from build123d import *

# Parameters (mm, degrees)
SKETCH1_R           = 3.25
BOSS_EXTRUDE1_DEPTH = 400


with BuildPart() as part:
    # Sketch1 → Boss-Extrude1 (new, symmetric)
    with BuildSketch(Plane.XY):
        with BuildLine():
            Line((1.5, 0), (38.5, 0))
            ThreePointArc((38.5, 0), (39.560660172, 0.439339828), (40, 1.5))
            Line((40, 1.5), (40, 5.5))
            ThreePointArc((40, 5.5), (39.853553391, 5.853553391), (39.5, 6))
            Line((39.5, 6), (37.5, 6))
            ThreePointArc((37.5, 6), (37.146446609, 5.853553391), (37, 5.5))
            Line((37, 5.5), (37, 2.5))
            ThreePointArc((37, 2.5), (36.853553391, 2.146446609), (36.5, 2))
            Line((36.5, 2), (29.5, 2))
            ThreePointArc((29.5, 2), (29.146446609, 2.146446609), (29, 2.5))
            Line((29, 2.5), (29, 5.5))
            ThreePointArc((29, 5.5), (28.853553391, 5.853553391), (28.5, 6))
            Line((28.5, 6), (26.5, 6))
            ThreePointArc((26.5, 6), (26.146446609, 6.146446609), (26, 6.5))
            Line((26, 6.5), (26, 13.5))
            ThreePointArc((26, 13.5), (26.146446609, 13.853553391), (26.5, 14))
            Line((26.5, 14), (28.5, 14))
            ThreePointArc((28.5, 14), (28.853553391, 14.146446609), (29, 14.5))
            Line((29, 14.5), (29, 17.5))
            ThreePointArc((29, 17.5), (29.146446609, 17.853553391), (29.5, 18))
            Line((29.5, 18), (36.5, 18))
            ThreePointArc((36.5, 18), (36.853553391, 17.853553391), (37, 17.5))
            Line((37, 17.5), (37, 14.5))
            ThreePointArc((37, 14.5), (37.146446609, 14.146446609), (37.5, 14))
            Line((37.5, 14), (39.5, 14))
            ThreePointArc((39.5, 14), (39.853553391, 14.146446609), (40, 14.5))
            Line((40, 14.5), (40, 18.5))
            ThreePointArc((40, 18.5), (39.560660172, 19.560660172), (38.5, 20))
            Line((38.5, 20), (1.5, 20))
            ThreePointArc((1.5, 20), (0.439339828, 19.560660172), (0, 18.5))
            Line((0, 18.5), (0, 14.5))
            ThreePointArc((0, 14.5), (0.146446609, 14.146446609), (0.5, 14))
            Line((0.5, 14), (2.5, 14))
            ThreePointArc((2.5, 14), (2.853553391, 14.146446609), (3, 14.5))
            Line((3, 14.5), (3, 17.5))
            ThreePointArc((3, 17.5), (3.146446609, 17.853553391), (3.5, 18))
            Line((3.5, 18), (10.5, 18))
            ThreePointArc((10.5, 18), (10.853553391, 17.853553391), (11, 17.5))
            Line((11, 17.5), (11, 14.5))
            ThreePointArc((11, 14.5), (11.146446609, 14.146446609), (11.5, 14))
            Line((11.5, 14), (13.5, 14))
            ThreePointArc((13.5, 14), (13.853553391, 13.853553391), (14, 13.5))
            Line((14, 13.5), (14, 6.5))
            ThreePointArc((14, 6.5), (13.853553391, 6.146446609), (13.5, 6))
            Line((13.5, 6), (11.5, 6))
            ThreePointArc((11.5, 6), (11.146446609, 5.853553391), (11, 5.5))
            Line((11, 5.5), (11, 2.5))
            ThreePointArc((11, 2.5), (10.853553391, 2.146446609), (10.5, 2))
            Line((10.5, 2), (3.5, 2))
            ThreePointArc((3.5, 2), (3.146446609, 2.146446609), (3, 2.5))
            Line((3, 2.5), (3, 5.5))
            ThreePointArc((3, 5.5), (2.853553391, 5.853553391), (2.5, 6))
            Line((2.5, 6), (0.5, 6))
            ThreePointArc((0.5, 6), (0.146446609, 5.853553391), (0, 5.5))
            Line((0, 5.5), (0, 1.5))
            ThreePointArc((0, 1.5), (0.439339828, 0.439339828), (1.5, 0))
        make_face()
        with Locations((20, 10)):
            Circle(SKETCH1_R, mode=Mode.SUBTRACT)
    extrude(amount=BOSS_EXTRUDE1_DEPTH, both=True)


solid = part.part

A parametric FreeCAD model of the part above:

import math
import FreeCAD as App
import Part
import Sketcher
from FreeCAD import Vector
Q = App.Units.Quantity

doc = App.newDocument("Part")
body = doc.addObject("PartDesign::Body", "Body")

# Sketch on XY plane
sketch1 = body.newObject("Sketcher::SketchObject", "Sketch")
sketch1.AttachmentSupport = (doc.getObject("XY_Plane"), [""])
sketch1.MapMode = "FlatFace"
sketch1.addGeometry([
    Part.LineSegment(Vector(1.5, 0, 0), Vector(38.5, 0, 0)),  # 0
    Part.ArcOfCircle(Part.Circle(Vector(38.5, 1.5, 0), Vector(0, 0, 1), 1.5), math.radians(-90), math.radians(0)),  # 1
    Part.LineSegment(Vector(40, 1.5, 0), Vector(40, 5.5, 0)),  # 2
    Part.ArcOfCircle(Part.Circle(Vector(39.5, 5.5, 0), Vector(0, 0, 1), 0.5), math.radians(0), math.radians(90)),  # 3
    Part.LineSegment(Vector(39.5, 6, 0), Vector(37.5, 6, 0)),  # 4
    Part.ArcOfCircle(Part.Circle(Vector(37.5, 5.5, 0), Vector(0, 0, 1), 0.5), math.radians(90), math.radians(180)),  # 5
    Part.LineSegment(Vector(37, 5.5, 0), Vector(37, 2.5, 0)),  # 6
    Part.ArcOfCircle(Part.Circle(Vector(36.5, 2.5, 0), Vector(0, 0, 1), 0.5), math.radians(-90), math.radians(0)),  # 7
    Part.LineSegment(Vector(36.5, 2, 0), Vector(29.5, 2, 0)),  # 8
    Part.ArcOfCircle(Part.Circle(Vector(29.5, 2.5, 0), Vector(0, 0, 1), 0.5), math.radians(180), math.radians(270)),  # 9
    Part.LineSegment(Vector(29, 2.5, 0), Vector(29, 5.5, 0)),  # 10
    Part.ArcOfCircle(Part.Circle(Vector(28.5, 5.5, 0), Vector(0, 0, 1), 0.5), math.radians(0), math.radians(90)),  # 11
    Part.LineSegment(Vector(28.5, 6, 0), Vector(26.5, 6, 0)),  # 12
    Part.ArcOfCircle(Part.Circle(Vector(26.5, 6.5, 0), Vector(0, 0, 1), 0.5), math.radians(180), math.radians(270)),  # 13
    Part.LineSegment(Vector(26, 6.5, 0), Vector(26, 13.5, 0)),  # 14
    Part.ArcOfCircle(Part.Circle(Vector(26.5, 13.5, 0), Vector(0, 0, 1), 0.5), math.radians(90), math.radians(180)),  # 15
    Part.LineSegment(Vector(26.5, 14, 0), Vector(28.5, 14, 0)),  # 16
    Part.ArcOfCircle(Part.Circle(Vector(28.5, 14.5, 0), Vector(0, 0, 1), 0.5), math.radians(-90), math.radians(0)),  # 17
    Part.LineSegment(Vector(29, 14.5, 0), Vector(29, 17.5, 0)),  # 18
    Part.ArcOfCircle(Part.Circle(Vector(29.5, 17.5, 0), Vector(0, 0, 1), 0.5), math.radians(90), math.radians(180)),  # 19
    Part.LineSegment(Vector(29.5, 18, 0), Vector(36.5, 18, 0)),  # 20
    Part.ArcOfCircle(Part.Circle(Vector(36.5, 17.5, 0), Vector(0, 0, 1), 0.5), math.radians(0), math.radians(90)),  # 21
    Part.LineSegment(Vector(37, 17.5, 0), Vector(37, 14.5, 0)),  # 22
    Part.ArcOfCircle(Part.Circle(Vector(37.5, 14.5, 0), Vector(0, 0, 1), 0.5), math.radians(180), math.radians(270)),  # 23
    Part.LineSegment(Vector(37.5, 14, 0), Vector(39.5, 14, 0)),  # 24
    Part.ArcOfCircle(Part.Circle(Vector(39.5, 14.5, 0), Vector(0, 0, 1), 0.5), math.radians(-90), math.radians(0)),  # 25
    Part.LineSegment(Vector(40, 14.5, 0), Vector(40, 18.5, 0)),  # 26
    Part.ArcOfCircle(Part.Circle(Vector(38.5, 18.5, 0), Vector(0, 0, 1), 1.5), math.radians(0), math.radians(90)),  # 27
    Part.LineSegment(Vector(38.5, 20, 0), Vector(1.5, 20, 0)),  # 28
    Part.ArcOfCircle(Part.Circle(Vector(1.5, 18.5, 0), Vector(0, 0, 1), 1.5), math.radians(90), math.radians(180)),  # 29
    Part.LineSegment(Vector(0, 18.5, 0), Vector(0, 14.5, 0)),  # 30
    Part.ArcOfCircle(Part.Circle(Vector(0.5, 14.5, 0), Vector(0, 0, 1), 0.5), math.radians(180), math.radians(270)),  # 31
    Part.LineSegment(Vector(0.5, 14, 0), Vector(2.5, 14, 0)),  # 32
    Part.ArcOfCircle(Part.Circle(Vector(2.5, 14.5, 0), Vector(0, 0, 1), 0.5), math.radians(-90), math.radians(0)),  # 33
    Part.LineSegment(Vector(3, 14.5, 0), Vector(3, 17.5, 0)),  # 34
    Part.ArcOfCircle(Part.Circle(Vector(3.5, 17.5, 0), Vector(0, 0, 1), 0.5), math.radians(90), math.radians(180)),  # 35
    Part.LineSegment(Vector(3.5, 18, 0), Vector(10.5, 18, 0)),  # 36
    Part.ArcOfCircle(Part.Circle(Vector(10.5, 17.5, 0), Vector(0, 0, 1), 0.5), math.radians(0), math.radians(90)),  # 37
    Part.LineSegment(Vector(11, 17.5, 0), Vector(11, 14.5, 0)),  # 38
    Part.ArcOfCircle(Part.Circle(Vector(11.5, 14.5, 0), Vector(0, 0, 1), 0.5), math.radians(180), math.radians(270)),  # 39
    Part.LineSegment(Vector(11.5, 14, 0), Vector(13.5, 14, 0)),  # 40
    Part.ArcOfCircle(Part.Circle(Vector(13.5, 13.5, 0), Vector(0, 0, 1), 0.5), math.radians(0), math.radians(90)),  # 41
    Part.LineSegment(Vector(14, 13.5, 0), Vector(14, 6.5, 0)),  # 42
    Part.ArcOfCircle(Part.Circle(Vector(13.5, 6.5, 0), Vector(0, 0, 1), 0.5), math.radians(-90), math.radians(0)),  # 43
    Part.LineSegment(Vector(13.5, 6, 0), Vector(11.5, 6, 0)),  # 44
    Part.ArcOfCircle(Part.Circle(Vector(11.5, 5.5, 0), Vector(0, 0, 1), 0.5), math.radians(90), math.radians(180)),  # 45
    Part.LineSegment(Vector(11, 5.5, 0), Vector(11, 2.5, 0)),  # 46
    Part.ArcOfCircle(Part.Circle(Vector(10.5, 2.5, 0), Vector(0, 0, 1), 0.5), math.radians(-90), math.radians(0)),  # 47
    Part.LineSegment(Vector(10.5, 2, 0), Vector(3.5, 2, 0)),  # 48
    Part.ArcOfCircle(Part.Circle(Vector(3.5, 2.5, 0), Vector(0, 0, 1), 0.5), math.radians(180), math.radians(270)),  # 49
    Part.LineSegment(Vector(3, 2.5, 0), Vector(3, 5.5, 0)),  # 50
    Part.ArcOfCircle(Part.Circle(Vector(2.5, 5.5, 0), Vector(0, 0, 1), 0.5), math.radians(0), math.radians(90)),  # 51
    Part.LineSegment(Vector(2.5, 6, 0), Vector(0.5, 6, 0)),  # 52
    Part.ArcOfCircle(Part.Circle(Vector(0.5, 5.5, 0), Vector(0, 0, 1), 0.5), math.radians(90), math.radians(180)),  # 53
    Part.LineSegment(Vector(0, 5.5, 0), Vector(0, 1.5, 0)),  # 54
    Part.ArcOfCircle(Part.Circle(Vector(1.5, 1.5, 0), Vector(0, 0, 1), 1.5), math.radians(180), math.radians(270)),  # 55
    Part.Circle(Vector(20, 10, 0), Vector(0, 0, 1), 3.25),  # 56
], False)
sketch1.addConstraint([
    Sketcher.Constraint("Tangent", 0, 2, 1, 1),
    Sketcher.Constraint("Tangent", 1, 2, 2, 1),
    Sketcher.Constraint("Tangent", 2, 2, 3, 1),
    Sketcher.Constraint("Tangent", 3, 2, 4, 1),
    Sketcher.Constraint("Tangent", 4, 2, 5, 1),
    Sketcher.Constraint("Tangent", 5, 2, 6, 1),
    Sketcher.Constraint("Tangent", 6, 2, 7, 2),
    Sketcher.Constraint("Tangent", 7, 1, 8, 1),
    Sketcher.Constraint("Tangent", 8, 2, 9, 2),
    Sketcher.Constraint("Tangent", 9, 1, 10, 1),
    Sketcher.Constraint("Tangent", 10, 2, 11, 1),
    Sketcher.Constraint("Tangent", 11, 2, 12, 1),
    Sketcher.Constraint("Tangent", 12, 2, 13, 2),
    Sketcher.Constraint("Tangent", 13, 1, 14, 1),
    Sketcher.Constraint("Tangent", 14, 2, 15, 2),
    Sketcher.Constraint("Tangent", 15, 1, 16, 1),
    Sketcher.Constraint("Tangent", 16, 2, 17, 1),
    Sketcher.Constraint("Tangent", 17, 2, 18, 1),
    Sketcher.Constraint("Tangent", 18, 2, 19, 2),
    Sketcher.Constraint("Tangent", 19, 1, 20, 1),
    Sketcher.Constraint("Tangent", 20, 2, 21, 2),
    Sketcher.Constraint("Tangent", 21, 1, 22, 1),
    Sketcher.Constraint("Tangent", 22, 2, 23, 1),
    Sketcher.Constraint("Tangent", 23, 2, 24, 1),
    Sketcher.Constraint("Tangent", 24, 2, 25, 1),
    Sketcher.Constraint("Tangent", 25, 2, 26, 1),
    Sketcher.Constraint("Tangent", 26, 2, 27, 1),
    Sketcher.Constraint("Tangent", 27, 2, 28, 1),
    Sketcher.Constraint("Tangent", 28, 2, 29, 1),
    Sketcher.Constraint("Tangent", 29, 2, 30, 1),
    Sketcher.Constraint("Tangent", 30, 2, 31, 1),
    Sketcher.Constraint("Tangent", 31, 2, 32, 1),
    Sketcher.Constraint("Tangent", 32, 2, 33, 1),
    Sketcher.Constraint("Tangent", 33, 2, 34, 1),
    Sketcher.Constraint("Tangent", 34, 2, 35, 2),
    Sketcher.Constraint("Tangent", 35, 1, 36, 1),
    Sketcher.Constraint("Tangent", 36, 2, 37, 2),
    Sketcher.Constraint("Tangent", 37, 1, 38, 1),
    Sketcher.Constraint("Tangent", 38, 2, 39, 1),
    Sketcher.Constraint("Tangent", 39, 2, 40, 1),
    Sketcher.Constraint("Tangent", 40, 2, 41, 2),
    Sketcher.Constraint("Tangent", 41, 1, 42, 1),
    Sketcher.Constraint("Tangent", 42, 2, 43, 2),
    Sketcher.Constraint("Tangent", 43, 1, 44, 1),
    Sketcher.Constraint("Tangent", 44, 2, 45, 1),
    Sketcher.Constraint("Tangent", 45, 2, 46, 1),
    Sketcher.Constraint("Tangent", 46, 2, 47, 2),
    Sketcher.Constraint("Tangent", 47, 1, 48, 1),
    Sketcher.Constraint("Tangent", 48, 2, 49, 2),
    Sketcher.Constraint("Tangent", 49, 1, 50, 1),
    Sketcher.Constraint("Tangent", 50, 2, 51, 1),
    Sketcher.Constraint("Tangent", 51, 2, 52, 1),
    Sketcher.Constraint("Tangent", 52, 2, 53, 1),
    Sketcher.Constraint("Tangent", 53, 2, 54, 1),
    Sketcher.Constraint("Tangent", 54, 2, 55, 1),
    Sketcher.Constraint("Tangent", 55, 2, 0, 1),
    Sketcher.Constraint("Horizontal", 0),
    Sketcher.Constraint("Vertical", 2),
    Sketcher.Constraint("Horizontal", 4),
    Sketcher.Constraint("Vertical", 6),
    Sketcher.Constraint("Horizontal", 8),
    Sketcher.Constraint("Vertical", 10),
    Sketcher.Constraint("Horizontal", 12),
    Sketcher.Constraint("Vertical", 14),
    Sketcher.Constraint("Horizontal", 16),
    Sketcher.Constraint("Vertical", 18),
    Sketcher.Constraint("Horizontal", 20),
    Sketcher.Constraint("Vertical", 22),
    Sketcher.Constraint("Horizontal", 24),
    Sketcher.Constraint("Vertical", 26),
    Sketcher.Constraint("Horizontal", 28),
    Sketcher.Constraint("Vertical", 30),
    Sketcher.Constraint("Horizontal", 32),
    Sketcher.Constraint("Vertical", 34),
    Sketcher.Constraint("Horizontal", 36),
    Sketcher.Constraint("Vertical", 38),
    Sketcher.Constraint("Horizontal", 40),
    Sketcher.Constraint("Vertical", 42),
    Sketcher.Constraint("Horizontal", 44),
    Sketcher.Constraint("Vertical", 46),
    Sketcher.Constraint("Horizontal", 48),
    Sketcher.Constraint("Vertical", 50),
    Sketcher.Constraint("Horizontal", 52),
    Sketcher.Constraint("Vertical", 54),
    Sketcher.Constraint("Equal", 3, 5),
    Sketcher.Constraint("Equal", 5, 7),
    Sketcher.Constraint("Equal", 7, 9),
    Sketcher.Constraint("Equal", 9, 11),
    Sketcher.Constraint("Equal", 11, 13),
    Sketcher.Constraint("Equal", 13, 15),
    Sketcher.Constraint("Equal", 15, 17),
    Sketcher.Constraint("Equal", 17, 19),
    Sketcher.Constraint("Equal", 19, 21),
    Sketcher.Constraint("Equal", 21, 23),
    Sketcher.Constraint("Equal", 23, 25),
    Sketcher.Constraint("Equal", 1, 27),
    Sketcher.Constraint("Equal", 27, 29),
    Sketcher.Constraint("Equal", 25, 31),
    Sketcher.Constraint("Equal", 31, 33),
    Sketcher.Constraint("Equal", 33, 35),
    Sketcher.Constraint("Equal", 35, 37),
    Sketcher.Constraint("Equal", 37, 39),
    Sketcher.Constraint("Equal", 39, 41),
    Sketcher.Constraint("Equal", 41, 43),
    Sketcher.Constraint("Equal", 43, 45),
    Sketcher.Constraint("Equal", 45, 47),
    Sketcher.Constraint("Equal", 47, 49),
    Sketcher.Constraint("Equal", 49, 51),
    Sketcher.Constraint("Equal", 51, 53),
    Sketcher.Constraint("Equal", 29, 55),
    Sketcher.Constraint("PointOnObject", 0, 2, -1),
    Sketcher.Constraint("PointOnObject", 29, 2, -2),
    Sketcher.Constraint("PointOnObject", 53, 2, -2),
    Sketcher.Constraint("Horizontal", 5, 3, 11, 3),
    Sketcher.Constraint("Horizontal", 17, 3, 23, 3),
    Sketcher.Constraint("Horizontal", 25, 3, 31, 3),
    Sketcher.Constraint("Horizontal", 21, 3, 35, 3),
    Sketcher.Constraint("Horizontal", 33, 3, 39, 3),
    Sketcher.Constraint("Horizontal", 13, 3, 43, 3),
    Sketcher.Constraint("Horizontal", 9, 3, 47, 3),
    Sketcher.Constraint("Horizontal", 45, 3, 51, 3),
    Sketcher.Constraint("Vertical", 11, 3, 17, 3),
    Sketcher.Constraint("Vertical", 7, 3, 21, 3),
    Sketcher.Constraint("Vertical", 3, 3, 25, 3),
    Sketcher.Constraint("Vertical", 39, 3, 45, 3),
    Sketcher.Constraint("Vertical", 35, 3, 49, 3),
    Sketcher.Constraint("Equal", 4, 12),
    Sketcher.Constraint("Equal", 24, 32),
    Sketcher.Constraint("Equal", 20, 36),
    Sketcher.Constraint("Equal", 32, 40),
    Sketcher.Constraint("Equal", 48, 14),
    Sketcher.Constraint("Equal", 10, 18),
    Sketcher.Constraint("Equal", 2, 26),
    Sketcher.Constraint("Diameter", 56, Q("6.5 mm")),
    Sketcher.Constraint("Radius", 1, Q("1.5 mm")),
    Sketcher.Constraint("Radius", 3, Q("0.5 mm")),
    Sketcher.Constraint("DistanceX", 0, 1, 0, 2, Q("37 mm")),
    Sketcher.Constraint("DistanceX", 4, 2, 4, 1, Q("2 mm")),
    Sketcher.Constraint("DistanceX", 8, 2, 8, 1, Q("7 mm")),
    Sketcher.Constraint("DistanceY", 2, 1, 2, 2, Q("4 mm")),
    Sketcher.Constraint("DistanceY", 6, 2, 6, 1, Q("3 mm")),
    Sketcher.Constraint("DistanceX", -1, 1, 56, 3, Q("20 mm")),
    Sketcher.Constraint("DistanceY", -1, 1, 56, 3, Q("10 mm")),
])
pad1 = body.newObject("PartDesign::Pad", "Pad")
pad1.Profile = sketch1
pad1.Length = 800
pad1.Midplane = True

doc.recompute()
